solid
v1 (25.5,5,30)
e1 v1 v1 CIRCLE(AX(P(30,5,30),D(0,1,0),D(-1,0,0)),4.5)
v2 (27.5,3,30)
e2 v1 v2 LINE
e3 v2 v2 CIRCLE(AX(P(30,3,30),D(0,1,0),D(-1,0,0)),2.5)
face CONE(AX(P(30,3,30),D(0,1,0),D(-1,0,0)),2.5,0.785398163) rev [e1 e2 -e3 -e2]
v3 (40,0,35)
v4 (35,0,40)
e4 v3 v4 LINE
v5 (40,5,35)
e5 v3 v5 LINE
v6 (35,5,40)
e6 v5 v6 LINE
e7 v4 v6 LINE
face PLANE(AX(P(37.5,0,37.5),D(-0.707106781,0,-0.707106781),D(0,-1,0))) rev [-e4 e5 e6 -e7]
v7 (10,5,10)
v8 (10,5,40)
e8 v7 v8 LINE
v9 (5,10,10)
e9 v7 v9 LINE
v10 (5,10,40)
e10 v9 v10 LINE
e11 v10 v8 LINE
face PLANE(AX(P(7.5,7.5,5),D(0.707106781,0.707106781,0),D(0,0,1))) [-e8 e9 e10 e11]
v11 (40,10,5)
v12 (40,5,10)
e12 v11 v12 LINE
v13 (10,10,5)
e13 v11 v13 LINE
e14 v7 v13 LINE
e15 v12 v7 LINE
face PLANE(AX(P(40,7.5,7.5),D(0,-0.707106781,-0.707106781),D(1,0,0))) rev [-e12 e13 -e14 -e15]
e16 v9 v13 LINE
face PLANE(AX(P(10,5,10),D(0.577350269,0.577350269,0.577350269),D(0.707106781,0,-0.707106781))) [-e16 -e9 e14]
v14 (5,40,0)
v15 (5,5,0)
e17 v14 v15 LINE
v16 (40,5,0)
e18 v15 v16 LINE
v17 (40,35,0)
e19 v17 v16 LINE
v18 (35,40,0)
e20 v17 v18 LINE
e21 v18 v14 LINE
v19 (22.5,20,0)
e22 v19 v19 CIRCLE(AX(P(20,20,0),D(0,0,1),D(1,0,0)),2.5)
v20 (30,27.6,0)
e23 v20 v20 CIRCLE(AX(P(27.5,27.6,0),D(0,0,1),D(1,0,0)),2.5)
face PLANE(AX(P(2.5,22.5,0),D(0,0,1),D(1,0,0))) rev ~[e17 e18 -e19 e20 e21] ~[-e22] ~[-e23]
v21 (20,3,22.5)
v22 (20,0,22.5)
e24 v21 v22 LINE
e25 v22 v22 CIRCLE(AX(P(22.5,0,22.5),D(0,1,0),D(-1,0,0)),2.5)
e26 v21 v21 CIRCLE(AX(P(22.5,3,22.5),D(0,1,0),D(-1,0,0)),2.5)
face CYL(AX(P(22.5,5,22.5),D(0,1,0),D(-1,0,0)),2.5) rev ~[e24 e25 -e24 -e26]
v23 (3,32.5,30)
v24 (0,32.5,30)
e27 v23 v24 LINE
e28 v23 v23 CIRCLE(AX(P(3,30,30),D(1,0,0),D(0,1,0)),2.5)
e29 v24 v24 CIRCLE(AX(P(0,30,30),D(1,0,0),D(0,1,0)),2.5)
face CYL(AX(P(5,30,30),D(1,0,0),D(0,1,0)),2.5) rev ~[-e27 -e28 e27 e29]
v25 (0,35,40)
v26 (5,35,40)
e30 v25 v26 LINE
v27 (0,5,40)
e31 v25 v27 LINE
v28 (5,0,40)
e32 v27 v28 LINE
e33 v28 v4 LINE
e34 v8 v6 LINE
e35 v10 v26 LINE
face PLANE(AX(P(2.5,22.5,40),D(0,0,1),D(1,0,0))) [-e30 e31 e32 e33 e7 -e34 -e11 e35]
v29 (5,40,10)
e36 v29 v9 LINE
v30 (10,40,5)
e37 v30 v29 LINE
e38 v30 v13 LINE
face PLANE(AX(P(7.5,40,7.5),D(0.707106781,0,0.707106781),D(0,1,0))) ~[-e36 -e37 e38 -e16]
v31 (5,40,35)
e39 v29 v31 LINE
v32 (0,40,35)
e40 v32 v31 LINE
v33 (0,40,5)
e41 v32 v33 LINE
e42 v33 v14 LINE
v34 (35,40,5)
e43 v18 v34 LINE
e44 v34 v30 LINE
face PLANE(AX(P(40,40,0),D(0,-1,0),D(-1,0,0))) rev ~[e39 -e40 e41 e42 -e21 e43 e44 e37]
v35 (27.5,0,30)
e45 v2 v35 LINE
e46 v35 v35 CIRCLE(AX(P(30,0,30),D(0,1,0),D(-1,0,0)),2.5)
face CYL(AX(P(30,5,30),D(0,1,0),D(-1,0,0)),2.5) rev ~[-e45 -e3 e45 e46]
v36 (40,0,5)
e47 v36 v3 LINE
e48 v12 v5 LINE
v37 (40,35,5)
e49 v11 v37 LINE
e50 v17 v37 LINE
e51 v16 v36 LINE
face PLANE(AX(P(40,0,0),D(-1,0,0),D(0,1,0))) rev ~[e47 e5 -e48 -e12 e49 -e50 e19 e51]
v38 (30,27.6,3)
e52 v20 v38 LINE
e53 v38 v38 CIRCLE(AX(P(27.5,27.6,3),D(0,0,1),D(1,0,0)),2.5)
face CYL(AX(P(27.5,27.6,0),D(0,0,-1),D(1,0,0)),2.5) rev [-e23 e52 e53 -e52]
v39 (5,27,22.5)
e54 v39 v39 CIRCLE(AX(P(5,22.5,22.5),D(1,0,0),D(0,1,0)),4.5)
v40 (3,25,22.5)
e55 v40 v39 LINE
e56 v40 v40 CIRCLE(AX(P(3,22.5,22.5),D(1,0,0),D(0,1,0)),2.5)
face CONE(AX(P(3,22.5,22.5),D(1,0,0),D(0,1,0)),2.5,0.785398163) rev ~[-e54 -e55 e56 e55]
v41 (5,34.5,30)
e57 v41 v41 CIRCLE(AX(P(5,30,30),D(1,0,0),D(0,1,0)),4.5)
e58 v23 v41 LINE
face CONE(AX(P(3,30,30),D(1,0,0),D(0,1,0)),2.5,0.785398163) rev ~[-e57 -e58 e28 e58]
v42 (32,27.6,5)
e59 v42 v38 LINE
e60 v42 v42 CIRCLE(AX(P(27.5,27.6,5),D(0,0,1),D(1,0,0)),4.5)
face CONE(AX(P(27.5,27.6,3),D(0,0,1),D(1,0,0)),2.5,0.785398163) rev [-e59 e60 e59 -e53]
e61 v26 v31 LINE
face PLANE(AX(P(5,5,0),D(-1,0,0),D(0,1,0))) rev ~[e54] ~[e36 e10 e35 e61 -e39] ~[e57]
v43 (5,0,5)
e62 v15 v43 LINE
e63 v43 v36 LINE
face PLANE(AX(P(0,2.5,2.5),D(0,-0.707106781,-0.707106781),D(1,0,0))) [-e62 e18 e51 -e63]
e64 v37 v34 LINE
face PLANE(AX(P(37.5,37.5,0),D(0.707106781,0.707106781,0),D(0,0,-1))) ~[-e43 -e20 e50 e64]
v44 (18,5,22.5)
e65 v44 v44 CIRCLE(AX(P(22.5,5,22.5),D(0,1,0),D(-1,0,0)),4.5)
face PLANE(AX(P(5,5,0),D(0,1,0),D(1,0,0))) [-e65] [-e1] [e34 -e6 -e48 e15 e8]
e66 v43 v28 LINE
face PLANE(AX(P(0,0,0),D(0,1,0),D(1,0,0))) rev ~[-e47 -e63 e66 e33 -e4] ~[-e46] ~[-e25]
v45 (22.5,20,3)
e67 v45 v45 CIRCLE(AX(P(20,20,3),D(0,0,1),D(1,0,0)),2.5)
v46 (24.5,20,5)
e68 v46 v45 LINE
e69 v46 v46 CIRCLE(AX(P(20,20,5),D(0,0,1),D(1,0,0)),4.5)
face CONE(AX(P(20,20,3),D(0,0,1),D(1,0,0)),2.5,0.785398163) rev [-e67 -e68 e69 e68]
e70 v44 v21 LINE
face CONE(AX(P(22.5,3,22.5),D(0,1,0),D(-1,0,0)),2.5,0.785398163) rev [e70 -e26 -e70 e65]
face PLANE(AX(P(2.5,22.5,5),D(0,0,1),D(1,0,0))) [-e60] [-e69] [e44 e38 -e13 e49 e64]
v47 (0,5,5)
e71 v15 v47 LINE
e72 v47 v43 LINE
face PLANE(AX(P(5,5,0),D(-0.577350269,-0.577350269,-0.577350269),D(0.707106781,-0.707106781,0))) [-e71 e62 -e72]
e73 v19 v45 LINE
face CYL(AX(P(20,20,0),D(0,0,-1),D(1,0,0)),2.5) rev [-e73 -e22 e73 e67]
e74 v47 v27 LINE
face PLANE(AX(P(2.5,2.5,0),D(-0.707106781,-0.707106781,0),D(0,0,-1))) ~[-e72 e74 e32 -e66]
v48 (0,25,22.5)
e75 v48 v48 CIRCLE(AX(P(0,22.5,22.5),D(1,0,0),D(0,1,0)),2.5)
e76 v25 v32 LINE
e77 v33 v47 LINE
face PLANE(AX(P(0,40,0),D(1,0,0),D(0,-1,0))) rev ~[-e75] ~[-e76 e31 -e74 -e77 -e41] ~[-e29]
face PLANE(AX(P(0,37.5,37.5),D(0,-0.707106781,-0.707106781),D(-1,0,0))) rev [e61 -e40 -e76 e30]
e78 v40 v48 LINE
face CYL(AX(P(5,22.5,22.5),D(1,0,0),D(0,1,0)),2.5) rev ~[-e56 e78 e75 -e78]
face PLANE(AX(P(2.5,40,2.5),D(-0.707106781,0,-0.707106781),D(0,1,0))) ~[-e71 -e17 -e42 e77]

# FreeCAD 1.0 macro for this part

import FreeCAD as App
import Part
import Sketcher
from FreeCAD import Vector
Q = App.Units.Quantity


def edges_at(feature, points):
    """Names of the edges that pass closest to the given points."""
    edges = feature.Shape.Edges
    near = lambda p: min(range(len(edges)), key=lambda i: edges[i].distToShape(Part.Vertex(*p))[0])
    return sorted({f"Edge{near(p) + 1}" for p in points})


def add_polygon(sketch, points):
    """Adds a closed chain of lines whose ends are joined by coincident constraints."""
    first, n = sketch.GeometryCount, len(points)
    for a, b in zip(points, points[1:] + points[:1]):
        sketch.addGeometry(Part.LineSegment(App.Vector(*a, 0), App.Vector(*b, 0)), False)
    for i in range(n):
        sketch.addConstraint(Sketcher.Constraint("Coincident", first + i, 2, first + (i + 1) % n, 1))

doc = App.newDocument("Part")
body = doc.addObject("PartDesign::Body", "Body")

# Sketch on XY plane
sketch1 = body.newObject("Sketcher::SketchObject", "Sketch")
sketch1.AttachmentSupport = (doc.getObject("XY_Plane"), [""])
sketch1.MapMode = "FlatFace"
add_polygon(sketch1, [(0, 40), (0, 0), (40, 0), (40, 40)])  # lines 0-3
sketch1.addGeometry(Part.Circle(Vector(20, 20, 0), Vector(0, 0, 1), 2.5), False)  # 4
sketch1.addGeometry(Part.Circle(Vector(27.5, 27.6, 0), Vector(0, 0, 1), 2.5), False)  # 5
sketch1.addConstraint(Sketcher.Constraint("Vertical", 0))
sketch1.addConstraint(Sketcher.Constraint("Horizontal", 1))
sketch1.addConstraint(Sketcher.Constraint("Vertical", 2))
sketch1.addConstraint(Sketcher.Constraint("Horizontal", 3))
sketch1.addConstraint(Sketcher.Constraint("Coincident", 0, 2, -1, 1))
sketch1.addConstraint(Sketcher.Constraint("Equal", 4, 5))
sketch1.addConstraint(Sketcher.Constraint("Equal", 3, 0))
sketch1.addConstraint(Sketcher.Constraint("Diameter", 4, Q("5 mm")))
sketch1.addConstraint(Sketcher.Constraint("DistanceX", 1, 1, 1, 2, Q("40 mm")))
sketch1.addConstraint(Sketcher.Constraint("DistanceX", -1, 1, 4, 3, Q("20 mm")))
sketch1.addConstraint(Sketcher.Constraint("DistanceY", -1, 1, 4, 3, Q("20 mm")))
sketch1.addConstraint(Sketcher.Constraint("DistanceX", -1, 1, 5, 3, Q("27.5 mm")))
sketch1.addConstraint(Sketcher.Constraint("DistanceY", -1, 1, 5, 3, Q("27.6 mm")))
pad1 = body.newObject("PartDesign::Pad", "Pad")
pad1.Profile = sketch1
pad1.Length = 5

# Sketch on XY plane
sketch2 = body.newObject("Sketcher::SketchObject", "Sketch001")
sketch2.AttachmentSupport = (doc.getObject("XY_Plane"), [""])
sketch2.MapMode = "FlatFace"
add_polygon(sketch2, [(0, 40), (0, 0), (40, 0), (40, 5), (5, 5), (5, 40)])  # lines 0-5
sketch2.addConstraint(Sketcher.Constraint("Vertical", 0))
sketch2.addConstraint(Sketcher.Constraint("Horizontal", 1))
sketch2.addConstraint(Sketcher.Constraint("Vertical", 2))
sketch2.addConstraint(Sketcher.Constraint("Horizontal", 3))
sketch2.addConstraint(Sketcher.Constraint("Vertical", 4))
sketch2.addConstraint(Sketcher.Constraint("Horizontal", 5))
sketch2.addConstraint(Sketcher.Constraint("Coincident", 0, 2, -1, 1))
sketch2.addConstraint(Sketcher.Constraint("Equal", 1, 0))
sketch2.addConstraint(Sketcher.Constraint("Equal", 5, 2))
sketch2.addConstraint(Sketcher.Constraint("DistanceX", 1, 1, 1, 2, Q("40 mm")))
sketch2.addConstraint(Sketcher.Constraint("DistanceX", 3, 2, 3, 1, Q("35 mm")))
pad2 = body.newObject("PartDesign::Pad", "Pad001")
pad2.Profile = sketch2
pad2.Length = 40
doc.recompute()

chamfer = body.newObject("PartDesign::Chamfer", "Chamfer")
chamfer.Base = (pad2, edges_at(pad2, [
    (40, 40, 2.5),
    (2.5, 40, 40),
    (40, 2.5, 40),
    (0, 0, 20),
    (0, 20, 0),
    (20, 0, 0),
    (5, 22.5, 5),
    (5, 5, 22.5),
    (22.5, 5, 5),
]))
chamfer.Size = 5

# Sketch on YZ plane
sketch3 = body.newObject("Sketcher::SketchObject", "Sketch002")
sketch3.AttachmentSupport = (doc.getObject("YZ_Plane"), [""])
sketch3.MapMode = "FlatFace"
sketch3.AttachmentOffset = App.Placement(Vector(0, 0, 5), App.Rotation())
sketch3.addGeometry(Part.Circle(Vector(30, 30, 0), Vector(0, 0, 1), 2.5), False)
sketch3.addGeometry(Part.Circle(Vector(22.5, 22.5, 0), Vector(0, 0, 1), 2.5), False)
sketch3.addConstraint(Sketcher.Constraint("Equal", 0, 1))
sketch3.addConstraint(Sketcher.Constraint("Diameter", 0, Q("5 mm")))
sketch3.addConstraint(Sketcher.Constraint("DistanceX", -1, 1, 0, 3, Q("30 mm")))
sketch3.addConstraint(Sketcher.Constraint("DistanceY", -1, 1, 0, 3, Q("30 mm")))
sketch3.addConstraint(Sketcher.Constraint("DistanceX", -1, 1, 1, 3, Q("22.5 mm")))
sketch3.addConstraint(Sketcher.Constraint("DistanceY", -1, 1, 1, 3, Q("22.5 mm")))
pocket1 = body.newObject("PartDesign::Pocket", "Pocket")
pocket1.Profile = sketch3
pocket1.Length = 25

# Sketch on XZ plane
sketch4 = body.newObject("Sketcher::SketchObject", "Sketch003")
sketch4.AttachmentSupport = (doc.getObject("XZ_Plane"), [""])
sketch4.MapMode = "FlatFace"
sketch4.AttachmentOffset = App.Placement(Vector(0, 0, -5), App.Rotation())
sketch4.addGeometry(Part.Circle(Vector(22.5, 22.5, 0), Vector(0, 0, 1), 2.5), False)
sketch4.addGeometry(Part.Circle(Vector(30, 30, 0), Vector(0, 0, 1), 2.5), False)
sketch4.addConstraint(Sketcher.Constraint("Equal", 0, 1))
sketch4.addConstraint(Sketcher.Constraint("Diameter", 0, Q("5 mm")))
sketch4.addConstraint(Sketcher.Constraint("DistanceX", -1, 1, 1, 3, Q("30 mm")))
sketch4.addConstraint(Sketcher.Constraint("DistanceY", -1, 1, 1, 3, Q("30 mm")))
sketch4.addConstraint(Sketcher.Constraint("DistanceX", -1, 1, 0, 3, Q("22.5 mm")))
sketch4.addConstraint(Sketcher.Constraint("DistanceY", -1, 1, 0, 3, Q("22.5 mm")))
pocket2 = body.newObject("PartDesign::Pocket", "Pocket001")
pocket2.Profile = sketch4
pocket2.Length = 25
pocket2.Reversed = True
doc.recompute()

chamfer2 = body.newObject("PartDesign::Chamfer", "Chamfer001")
chamfer2.Base = (pocket2, edges_at(pocket2, [
    (5, 27.5, 30),
    (5, 20, 22.5),
    (25, 5, 22.5),
    (32.5, 5, 30),
    (17.5, 20, 5),
    (25, 27.6, 5),
]))
chamfer2.Size = 2

doc.recompute()
